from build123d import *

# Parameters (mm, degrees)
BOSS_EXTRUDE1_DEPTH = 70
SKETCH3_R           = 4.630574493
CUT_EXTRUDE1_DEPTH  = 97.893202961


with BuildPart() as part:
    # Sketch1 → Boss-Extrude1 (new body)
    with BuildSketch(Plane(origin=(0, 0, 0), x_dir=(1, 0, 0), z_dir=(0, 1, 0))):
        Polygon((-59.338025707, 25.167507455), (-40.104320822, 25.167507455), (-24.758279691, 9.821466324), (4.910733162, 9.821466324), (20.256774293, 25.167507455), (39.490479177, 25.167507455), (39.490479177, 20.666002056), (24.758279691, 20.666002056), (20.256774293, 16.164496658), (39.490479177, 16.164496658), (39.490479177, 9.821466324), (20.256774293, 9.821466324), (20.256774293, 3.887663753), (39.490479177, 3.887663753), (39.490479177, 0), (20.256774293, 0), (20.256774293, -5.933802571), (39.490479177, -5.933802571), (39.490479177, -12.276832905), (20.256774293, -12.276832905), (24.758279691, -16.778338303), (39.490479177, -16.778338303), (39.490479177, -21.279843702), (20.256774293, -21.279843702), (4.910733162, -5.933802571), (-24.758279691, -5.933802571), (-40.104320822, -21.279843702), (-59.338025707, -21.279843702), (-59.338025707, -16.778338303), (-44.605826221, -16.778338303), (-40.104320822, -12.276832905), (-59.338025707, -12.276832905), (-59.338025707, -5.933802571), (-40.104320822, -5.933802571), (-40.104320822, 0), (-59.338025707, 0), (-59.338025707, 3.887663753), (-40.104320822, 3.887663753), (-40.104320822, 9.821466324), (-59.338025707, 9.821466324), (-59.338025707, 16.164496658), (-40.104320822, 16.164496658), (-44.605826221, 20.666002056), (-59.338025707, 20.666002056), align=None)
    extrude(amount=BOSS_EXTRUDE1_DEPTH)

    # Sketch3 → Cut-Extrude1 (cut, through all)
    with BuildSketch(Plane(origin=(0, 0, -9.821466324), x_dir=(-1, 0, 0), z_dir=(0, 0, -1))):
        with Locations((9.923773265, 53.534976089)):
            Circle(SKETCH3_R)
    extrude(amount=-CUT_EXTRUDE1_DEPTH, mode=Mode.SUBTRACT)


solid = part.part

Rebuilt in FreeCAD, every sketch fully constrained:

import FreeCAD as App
import Part
import Sketcher

doc = App.newDocument("Part")
params = doc.addObject("Spreadsheet::Sheet", "Params")
for row, (alias, value) in enumerate([
    ("pad1_length", "70 mm"),
], start=1):
    params.set(f"A{row}", alias)
    params.set(f"B{row}", "=" + value)
    params.setAlias(f"B{row}", alias)

body = doc.addObject("PartDesign::Body", "Body")

# Sketch on XZ plane
sketch1 = doc.addObject("Sketcher::SketchObject", "Sketch")
body.addObject(sketch1)
sketch1.AttachmentSupport = (doc.XZ_Plane, [""])
sketch1.MapMode = "FlatFace"
sketch1.addGeometry(Part.LineSegment(App.Vector(-40.104321, -25.167507, 0), App.Vector(-59.338026, -25.167507, 0)), False)
sketch1.addGeometry(Part.LineSegment(App.Vector(-59.338026, -25.167507, 0), App.Vector(-59.338026, -20.666002, 0)), False)
sketch1.addGeometry(Part.LineSegment(App.Vector(-59.338026, -20.666002, 0), App.Vector(-44.605826, -20.666002, 0)), False)
sketch1.addGeometry(Part.LineSegment(App.Vector(-44.605826, -20.666002, 0), App.Vector(-40.104321, -16.164497, 0)), False)
sketch1.addGeometry(Part.LineSegment(App.Vector(-40.104321, -16.164497, 0), App.Vector(-59.338026, -16.164497, 0)), False)
sketch1.addGeometry(Part.LineSegment(App.Vector(-59.338026, -16.164497, 0), App.Vector(-59.338026, -9.821466, 0)), False)
sketch1.addGeometry(Part.LineSegment(App.Vector(-59.338026, -9.821466, 0), App.Vector(-40.104321, -9.821466, 0)), False)
sketch1.addGeometry(Part.LineSegment(App.Vector(-40.104321, -9.821466, 0), App.Vector(-40.104321, -3.887664, 0)), False)
sketch1.addGeometry(Part.LineSegment(App.Vector(-40.104321, -3.887664, 0), App.Vector(-59.338026, -3.887664, 0)), False)
sketch1.addGeometry(Part.LineSegment(App.Vector(-59.338026, -3.887664, 0), App.Vector(-59.338026, 0, 0)), False)
sketch1.addGeometry(Part.LineSegment(App.Vector(-59.338026, 0, 0), App.Vector(-40.104321, 0, 0)), False)
sketch1.addGeometry(Part.LineSegment(App.Vector(-40.104321, 0, 0), App.Vector(-40.104321, 5.933803, 0)), False)
sketch1.addGeometry(Part.LineSegment(App.Vector(-40.104321, 5.933803, 0), App.Vector(-59.338026, 5.933803, 0)), False)
sketch1.addGeometry(Part.LineSegment(App.Vector(-59.338026, 5.933803, 0), App.Vector(-59.338026, 12.276833, 0)), False)
sketch1.addGeometry(Part.LineSegment(App.Vector(-59.338026, 12.276833, 0), App.Vector(-40.104321, 12.276833, 0)), False)
sketch1.addGeometry(Part.LineSegment(App.Vector(-40.104321, 12.276833, 0), App.Vector(-44.605826, 16.778338, 0)), False)
sketch1.addGeometry(Part.LineSegment(App.Vector(-44.605826, 16.778338, 0), App.Vector(-59.338026, 16.778338, 0)), False)
sketch1.addGeometry(Part.LineSegment(App.Vector(-59.338026, 16.778338, 0), App.Vector(-59.338026, 21.279844, 0)), False)
sketch1.addGeometry(Part.LineSegment(App.Vector(-59.338026, 21.279844, 0), App.Vector(-40.104321, 21.279844, 0)), False)
sketch1.addGeometry(Part.LineSegment(App.Vector(-40.104321, 21.279844, 0), App.Vector(-24.75828, 5.933803, 0)), False)
sketch1.addGeometry(Part.LineSegment(App.Vector(-24.75828, 5.933803, 0), App.Vector(4.910733, 5.933803, 0)), False)
sketch1.addGeometry(Part.LineSegment(App.Vector(4.910733, 5.933803, 0), App.Vector(20.256774, 21.279844, 0)), False)
sketch1.addGeometry(Part.LineSegment(App.Vector(20.256774, 21.279844, 0), App.Vector(39.490479, 21.279844, 0)), False)
sketch1.addGeometry(Part.LineSegment(App.Vector(39.490479, 21.279844, 0), App.Vector(39.490479, 16.778338, 0)), False)
sketch1.addGeometry(Part.LineSegment(App.Vector(39.490479, 16.778338, 0), App.Vector(24.75828, 16.778338, 0)), False)
sketch1.addGeometry(Part.LineSegment(App.Vector(24.75828, 16.778338, 0), App.Vector(20.256774, 12.276833, 0)), False)
sketch1.addGeometry(Part.LineSegment(App.Vector(20.256774, 12.276833, 0), App.Vector(39.490479, 12.276833, 0)), False)
sketch1.addGeometry(Part.LineSegment(App.Vector(39.490479, 12.276833, 0), App.Vector(39.490479, 5.933803, 0)), False)
sketch1.addGeometry(Part.LineSegment(App.Vector(39.490479, 5.933803, 0), App.Vector(20.256774, 5.933803, 0)), False)
sketch1.addGeometry(Part.LineSegment(App.Vector(20.256774, 5.933803, 0), App.Vector(20.256774, 0, 0)), False)
sketch1.addGeometry(Part.LineSegment(App.Vector(20.256774, 0, 0), App.Vector(39.490479, 0, 0)), False)
sketch1.addGeometry(Part.LineSegment(App.Vector(39.490479, 0, 0), App.Vector(39.490479, -3.887664, 0)), False)
sketch1.addGeometry(Part.LineSegment(App.Vector(39.490479, -3.887664, 0), App.Vector(20.256774, -3.887664, 0)), False)
sketch1.addGeometry(Part.LineSegment(App.Vector(20.256774, -3.887664, 0), App.Vector(20.256774, -9.821466, 0)), False)
sketch1.addGeometry(Part.LineSegment(App.Vector(20.256774, -9.821466, 0), App.Vector(39.490479, -9.821466, 0)), False)
sketch1.addGeometry(Part.LineSegment(App.Vector(39.490479, -9.821466, 0), App.Vector(39.490479, -16.164497, 0)), False)
sketch1.addGeometry(Part.LineSegment(App.Vector(39.490479, -16.164497, 0), App.Vector(20.256774, -16.164497, 0)), False)
sketch1.addGeometry(Part.LineSegment(App.Vector(20.256774, -16.164497, 0), App.Vector(24.75828, -20.666002, 0)), False)
sketch1.addGeometry(Part.LineSegment(App.Vector(24.75828, -20.666002, 0), App.Vector(39.490479, -20.666002, 0)), False)
sketch1.addGeometry(Part.LineSegment(App.Vector(39.490479, -20.666002, 0), App.Vector(39.490479, -25.167507, 0)), False)
sketch1.addGeometry(Part.LineSegment(App.Vector(39.490479, -25.167507, 0), App.Vector(20.256774, -25.167507, 0)), False)
sketch1.addGeometry(Part.LineSegment(App.Vector(20.256774, -25.167507, 0), App.Vector(4.910733, -9.821466, 0)), False)
sketch1.addGeometry(Part.LineSegment(App.Vector(4.910733, -9.821466, 0), App.Vector(-24.75828, -9.821466, 0)), False)
sketch1.addGeometry(Part.LineSegment(App.Vector(-24.75828, -9.821466, 0), App.Vector(-40.104321, -25.167507, 0)), False)
sketch1.addConstraint(Sketcher.Constraint("Coincident", 0, 2, 1, 1))
sketch1.addConstraint(Sketcher.Constraint("Coincident", 1, 2, 2, 1))
sketch1.addConstraint(Sketcher.Constraint("Coincident", 2, 2, 3, 1))
sketch1.addConstraint(Sketcher.Constraint("Coincident", 3, 2, 4, 1))
sketch1.addConstraint(Sketcher.Constraint("Coincident", 4, 2, 5, 1))
sketch1.addConstraint(Sketcher.Constraint("Coincident", 5, 2, 6, 1))
sketch1.addConstraint(Sketcher.Constraint("Coincident", 6, 2, 7, 1))
sketch1.addConstraint(Sketcher.Constraint("Coincident", 7, 2, 8, 1))
sketch1.addConstraint(Sketcher.Constraint("Coincident", 8, 2, 9, 1))
sketch1.addConstraint(Sketcher.Constraint("Coincident", 9, 2, 10, 1))
sketch1.addConstraint(Sketcher.Constraint("Coincident", 10, 2, 11, 1))
sketch1.addConstraint(Sketcher.Constraint("Coincident", 11, 2, 12, 1))
sketch1.addConstraint(Sketcher.Constraint("Coincident", 12, 2, 13, 1))
sketch1.addConstraint(Sketcher.Constraint("Coincident", 13, 2, 14, 1))
sketch1.addConstraint(Sketcher.Constraint("Coincident", 14, 2, 15, 1))
sketch1.addConstraint(Sketcher.Constraint("Coincident", 15, 2, 16, 1))
sketch1.addConstraint(Sketcher.Constraint("Coincident", 16, 2, 17, 1))
sketch1.addConstraint(Sketcher.Constraint("Coincident", 17, 2, 18, 1))
sketch1.addConstraint(Sketcher.Constraint("Coincident", 18, 2, 19, 1))
sketch1.addConstraint(Sketcher.Constraint("Coincident", 19, 2, 20, 1))
sketch1.addConstraint(Sketcher.Constraint("Coincident", 20, 2, 21, 1))
sketch1.addConstraint(Sketcher.Constraint("Coincident", 21, 2, 22, 1))
sketch1.addConstraint(Sketcher.Constraint("Coincident", 22, 2, 23, 1))
sketch1.addConstraint(Sketcher.Constraint("Coincident", 23, 2, 24, 1))
sketch1.addConstraint(Sketcher.Constraint("Coincident", 24, 2, 25, 1))
sketch1.addConstraint(Sketcher.Constraint("Coincident", 25, 2, 26, 1))
sketch1.addConstraint(Sketcher.Constraint("Coincident", 26, 2, 27, 1))
sketch1.addConstraint(Sketcher.Constraint("Coincident", 27, 2, 28, 1))
sketch1.addConstraint(Sketcher.Constraint("Coincident", 28, 2, 29, 1))
sketch1.addConstraint(Sketcher.Constraint("Coincident", 29, 2, 30, 1))
sketch1.addConstraint(Sketcher.Constraint("Coincident", 30, 2, 31, 1))
sketch1.addConstraint(Sketcher.Constraint("Coincident", 31, 2, 32, 1))
sketch1.addConstraint(Sketcher.Constraint("Coincident", 32, 2, 33, 1))
sketch1.addConstraint(Sketcher.Constraint("Coincident", 33, 2, 34, 1))
sketch1.addConstraint(Sketcher.Constraint("Coincident", 34, 2, 35, 1))
sketch1.addConstraint(Sketcher.Constraint("Coincident", 35, 2, 36, 1))
sketch1.addConstraint(Sketcher.Constraint("Coincident", 36, 2, 37, 1))
sketch1.addConstraint(Sketcher.Constraint("Coincident", 37, 2, 38, 1))
sketch1.addConstraint(Sketcher.Constraint("Coincident", 38, 2, 39, 1))
sketch1.addConstraint(Sketcher.Constraint("Coincident", 39, 2, 40, 1))
sketch1.addConstraint(Sketcher.Constraint("Coincident", 40, 2, 41, 1))
sketch1.addConstraint(Sketcher.Constraint("Coincident", 41, 2, 42, 1))
sketch1.addConstraint(Sketcher.Constraint("Coincident", 42, 2, 43, 1))
sketch1.addConstraint(Sketcher.Constraint("Coincident", 43, 2, 0, 1))
sketch1.addConstraint(Sketcher.Constraint("Horizontal", 0))
sketch1.addConstraint(Sketcher.Constraint("Vertical", 1))
sketch1.addConstraint(Sketcher.Constraint("Horizontal", 2))
sketch1.addConstraint(Sketcher.Constraint("Horizontal", 4))
sketch1.addConstraint(Sketcher.Constraint("Vertical", 5))
sketch1.addConstraint(Sketcher.Constraint("Horizontal", 6))
sketch1.addConstraint(Sketcher.Constraint("Vertical", 7))
sketch1.addConstraint(Sketcher.Constraint("Horizontal", 8))
sketch1.addConstraint(Sketcher.Constraint("Vertical", 9))
sketch1.addConstraint(Sketcher.Constraint("Horizontal", 10))
sketch1.addConstraint(Sketcher.Constraint("Vertical", 11))
sketch1.addConstraint(Sketcher.Constraint("Horizontal", 12))
sketch1.addConstraint(Sketcher.Constraint("Vertical", 13))
sketch1.addConstraint(Sketcher.Constraint("Horizontal", 14))
sketch1.addConstraint(Sketcher.Constraint("Horizontal", 16))
sketch1.addConstraint(Sketcher.Constraint("Vertical", 17))
sketch1.addConstraint(Sketcher.Constraint("Horizontal", 18))
sketch1.addConstraint(Sketcher.Constraint("Horizontal", 20))
sketch1.addConstraint(Sketcher.Constraint("Horizontal", 22))
sketch1.addConstraint(Sketcher.Constraint("Vertical", 23))
sketch1.addConstraint(Sketcher.Constraint("Horizontal", 24))
sketch1.addConstraint(Sketcher.Constraint("Horizontal", 26))
sketch1.addConstraint(Sketcher.Constraint("Vertical", 27))
sketch1.addConstraint(Sketcher.Constraint("Horizontal", 28))
sketch1.addConstraint(Sketcher.Constraint("Vertical", 29))
sketch1.addConstraint(Sketcher.Constraint("Horizontal", 30))
sketch1.addConstraint(Sketcher.Constraint("Vertical", 31))
sketch1.addConstraint(Sketcher.Constraint("Horizontal", 32))
sketch1.addConstraint(Sketcher.Constraint("Vertical", 33))
sketch1.addConstraint(Sketcher.Constraint("Horizontal", 34))
sketch1.addConstraint(Sketcher.Constraint("Vertical", 35))
sketch1.addConstraint(Sketcher.Constraint("Horizontal", 36))
sketch1.addConstraint(Sketcher.Constraint("Horizontal", 38))
sketch1.addConstraint(Sketcher.Constraint("Vertical", 39))
sketch1.addConstraint(Sketcher.Constraint("Horizontal", 40))
sketch1.addConstraint(Sketcher.Constraint("Horizontal", 42))
sketch1.addConstraint(Sketcher.Constraint("PointOnObject", 9, 2, -1))
sketch1.addConstraint(Sketcher.Constraint("PointOnObject", 29, 2, -1))
sketch1.addConstraint(Sketcher.Constraint("Perpendicular", 3, 15))
sketch1.addConstraint(Sketcher.Constraint("Parallel", 15, 19))
sketch1.addConstraint(Sketcher.Constraint("Perpendicular", 19, 21))
sketch1.addConstraint(Sketcher.Constraint("Parallel", 21, 25))
sketch1.addConstraint(Sketcher.Constraint("Perpendicular", 25, 37))
sketch1.addConstraint(Sketcher.Constraint("Parallel", 37, 41))
sketch1.addConstraint(Sketcher.Constraint("Perpendicular", 41, 43))
sketch1.addConstraint(Sketcher.Constraint("Horizontal", 12, 2, 19, 2))
sketch1.addConstraint(Sketcher.Constraint("Horizontal", 18, 2, 21, 2))
sketch1.addConstraint(Sketcher.Constraint("Horizontal", 16, 2, 23, 2))
sketch1.addConstraint(Sketcher.Constraint("Horizontal", 14, 2, 25, 2))
sketch1.addConstraint(Sketcher.Constraint("Horizontal", 20, 2, 27, 2))
sketch1.addConstraint(Sketcher.Constraint("Horizontal", 8, 2, 31, 2))
sketch1.addConstraint(Sketcher.Constraint("Horizontal", 6, 2, 33, 2))
sketch1.addConstraint(Sketcher.Constraint("Horizontal", 4, 2, 35, 2))
sketch1.addConstraint(Sketcher.Constraint("Horizontal", 2, 2, 37, 2))
sketch1.addConstraint(Sketcher.Constraint("Horizontal", 0, 2, 39, 2))
sketch1.addConstraint(Sketcher.Constraint("Horizontal", 34, 2, 41, 2))
sketch1.addConstraint(Sketcher.Constraint("Vertical", 1, 2, 4, 2))
sketch1.addConstraint(Sketcher.Constraint("Vertical", 3, 2, 6, 2))
sketch1.addConstraint(Sketcher.Constraint("Vertical", 5, 2, 8, 2))
sketch1.addConstraint(Sketcher.Constraint("Vertical", 7, 2, 10, 2))
sketch1.addConstraint(Sketcher.Constraint("Vertical", 9, 2, 12, 2))
sketch1.addConstraint(Sketcher.Constraint("Vertical", 11, 2, 14, 2))
sketch1.addConstraint(Sketcher.Constraint("Vertical", 2, 2, 15, 2))
sketch1.addConstraint(Sketcher.Constraint("Vertical", 13, 2, 16, 2))
sketch1.addConstraint(Sketcher.Constraint("Vertical", 14, 2, 18, 2))
sketch1.addConstraint(Sketcher.Constraint("Vertical", 21, 2, 25, 2))
sketch1.addConstraint(Sketcher.Constraint("Vertical", 23, 2, 26, 2))
sketch1.addConstraint(Sketcher.Constraint("Vertical", 25, 2, 28, 2))
sketch1.addConstraint(Sketcher.Constraint("Vertical", 27, 2, 30, 2))
sketch1.addConstraint(Sketcher.Constraint("Vertical", 29, 2, 32, 2))
sketch1.addConstraint(Sketcher.Constraint("Vertical", 31, 2, 34, 2))
sketch1.addConstraint(Sketcher.Constraint("Vertical", 33, 2, 36, 2))
sketch1.addConstraint(Sketcher.Constraint("Vertical", 24, 2, 37, 2))
sketch1.addConstraint(Sketcher.Constraint("Vertical", 35, 2, 38, 2))
sketch1.addConstraint(Sketcher.Constraint("Vertical", 36, 2, 40, 2))
sketch1.addConstraint(Sketcher.Constraint("Vertical", 20, 2, 41, 2))
sketch1.addConstraint(Sketcher.Constraint("Vertical", 19, 2, 42, 2))
sketch1.addConstraint(Sketcher.Constraint("Equal", 18, 22))
sketch1.addConstraint(Sketcher.Constraint("Equal", 7, 11))
sketch1.addConstraint(Sketcher.Constraint("Equal", 5, 13))
sketch1.addConstraint(Sketcher.Constraint("DistanceX", 2, 1, 2, 2, 14.732199))
sketch1.addConstraint(Sketcher.Constraint("DistanceY", 5, 1, 5, 2, 6.34303))
sketch1.addConstraint(Sketcher.Constraint("DistanceY", 5, 2, 13, 2, 22.098299))
sketch1.addConstraint(Sketcher.Constraint("DistanceX", 18, 2, 22, 2, 79.5948))
sketch1.addConstraint(Sketcher.Constraint("Distance", 3, 6.36609))
sketch1.addConstraint(Sketcher.Constraint("Distance", 19, 21.702579))
sketch1.addConstraint(Sketcher.Constraint("DistanceY", 7, 1, 7, 2, 5.933803))
sketch1.addConstraint(Sketcher.Constraint("DistanceX", 3, 2, -1, 1, 40.104321))
pad1 = doc.addObject("PartDesign::Pad", "Pad")
body.addObject(pad1)
pad1.Profile = sketch1
pad1.setExpression("Length", "Params.pad1_length")
pad1.Reversed = True

# Sketch on XY plane
sketch2 = doc.addObject("Sketcher::SketchObject", "Sketch001")
body.addObject(sketch2)
sketch2.AttachmentSupport = (doc.XY_Plane, [""])
sketch2.MapMode = "FlatFace"
sketch2.AttachmentOffset = App.Placement(App.Vector(0, 0, -9.821466), App.Rotation())
sketch2.addGeometry(Part.Circle(App.Vector(-9.923773, 53.534976, 0), App.Vector(0, 0, 1), 4.630574), False)
sketch2.addConstraint(Sketcher.Constraint("Diameter", 0, 9.261149))
sketch2.addConstraint(Sketcher.Constraint("DistanceX", 0, 3, -1, 1, 9.923773))
sketch2.addConstraint(Sketcher.Constraint("DistanceY", -1, 1, 0, 3, 53.534976))
pocket1 = doc.addObject("PartDesign::Pocket", "Pocket")
body.addObject(pocket1)
pocket1.Profile = sketch2
pocket1.Type = "ThroughAll"
pocket1.Reversed = True

doc.recompute()
